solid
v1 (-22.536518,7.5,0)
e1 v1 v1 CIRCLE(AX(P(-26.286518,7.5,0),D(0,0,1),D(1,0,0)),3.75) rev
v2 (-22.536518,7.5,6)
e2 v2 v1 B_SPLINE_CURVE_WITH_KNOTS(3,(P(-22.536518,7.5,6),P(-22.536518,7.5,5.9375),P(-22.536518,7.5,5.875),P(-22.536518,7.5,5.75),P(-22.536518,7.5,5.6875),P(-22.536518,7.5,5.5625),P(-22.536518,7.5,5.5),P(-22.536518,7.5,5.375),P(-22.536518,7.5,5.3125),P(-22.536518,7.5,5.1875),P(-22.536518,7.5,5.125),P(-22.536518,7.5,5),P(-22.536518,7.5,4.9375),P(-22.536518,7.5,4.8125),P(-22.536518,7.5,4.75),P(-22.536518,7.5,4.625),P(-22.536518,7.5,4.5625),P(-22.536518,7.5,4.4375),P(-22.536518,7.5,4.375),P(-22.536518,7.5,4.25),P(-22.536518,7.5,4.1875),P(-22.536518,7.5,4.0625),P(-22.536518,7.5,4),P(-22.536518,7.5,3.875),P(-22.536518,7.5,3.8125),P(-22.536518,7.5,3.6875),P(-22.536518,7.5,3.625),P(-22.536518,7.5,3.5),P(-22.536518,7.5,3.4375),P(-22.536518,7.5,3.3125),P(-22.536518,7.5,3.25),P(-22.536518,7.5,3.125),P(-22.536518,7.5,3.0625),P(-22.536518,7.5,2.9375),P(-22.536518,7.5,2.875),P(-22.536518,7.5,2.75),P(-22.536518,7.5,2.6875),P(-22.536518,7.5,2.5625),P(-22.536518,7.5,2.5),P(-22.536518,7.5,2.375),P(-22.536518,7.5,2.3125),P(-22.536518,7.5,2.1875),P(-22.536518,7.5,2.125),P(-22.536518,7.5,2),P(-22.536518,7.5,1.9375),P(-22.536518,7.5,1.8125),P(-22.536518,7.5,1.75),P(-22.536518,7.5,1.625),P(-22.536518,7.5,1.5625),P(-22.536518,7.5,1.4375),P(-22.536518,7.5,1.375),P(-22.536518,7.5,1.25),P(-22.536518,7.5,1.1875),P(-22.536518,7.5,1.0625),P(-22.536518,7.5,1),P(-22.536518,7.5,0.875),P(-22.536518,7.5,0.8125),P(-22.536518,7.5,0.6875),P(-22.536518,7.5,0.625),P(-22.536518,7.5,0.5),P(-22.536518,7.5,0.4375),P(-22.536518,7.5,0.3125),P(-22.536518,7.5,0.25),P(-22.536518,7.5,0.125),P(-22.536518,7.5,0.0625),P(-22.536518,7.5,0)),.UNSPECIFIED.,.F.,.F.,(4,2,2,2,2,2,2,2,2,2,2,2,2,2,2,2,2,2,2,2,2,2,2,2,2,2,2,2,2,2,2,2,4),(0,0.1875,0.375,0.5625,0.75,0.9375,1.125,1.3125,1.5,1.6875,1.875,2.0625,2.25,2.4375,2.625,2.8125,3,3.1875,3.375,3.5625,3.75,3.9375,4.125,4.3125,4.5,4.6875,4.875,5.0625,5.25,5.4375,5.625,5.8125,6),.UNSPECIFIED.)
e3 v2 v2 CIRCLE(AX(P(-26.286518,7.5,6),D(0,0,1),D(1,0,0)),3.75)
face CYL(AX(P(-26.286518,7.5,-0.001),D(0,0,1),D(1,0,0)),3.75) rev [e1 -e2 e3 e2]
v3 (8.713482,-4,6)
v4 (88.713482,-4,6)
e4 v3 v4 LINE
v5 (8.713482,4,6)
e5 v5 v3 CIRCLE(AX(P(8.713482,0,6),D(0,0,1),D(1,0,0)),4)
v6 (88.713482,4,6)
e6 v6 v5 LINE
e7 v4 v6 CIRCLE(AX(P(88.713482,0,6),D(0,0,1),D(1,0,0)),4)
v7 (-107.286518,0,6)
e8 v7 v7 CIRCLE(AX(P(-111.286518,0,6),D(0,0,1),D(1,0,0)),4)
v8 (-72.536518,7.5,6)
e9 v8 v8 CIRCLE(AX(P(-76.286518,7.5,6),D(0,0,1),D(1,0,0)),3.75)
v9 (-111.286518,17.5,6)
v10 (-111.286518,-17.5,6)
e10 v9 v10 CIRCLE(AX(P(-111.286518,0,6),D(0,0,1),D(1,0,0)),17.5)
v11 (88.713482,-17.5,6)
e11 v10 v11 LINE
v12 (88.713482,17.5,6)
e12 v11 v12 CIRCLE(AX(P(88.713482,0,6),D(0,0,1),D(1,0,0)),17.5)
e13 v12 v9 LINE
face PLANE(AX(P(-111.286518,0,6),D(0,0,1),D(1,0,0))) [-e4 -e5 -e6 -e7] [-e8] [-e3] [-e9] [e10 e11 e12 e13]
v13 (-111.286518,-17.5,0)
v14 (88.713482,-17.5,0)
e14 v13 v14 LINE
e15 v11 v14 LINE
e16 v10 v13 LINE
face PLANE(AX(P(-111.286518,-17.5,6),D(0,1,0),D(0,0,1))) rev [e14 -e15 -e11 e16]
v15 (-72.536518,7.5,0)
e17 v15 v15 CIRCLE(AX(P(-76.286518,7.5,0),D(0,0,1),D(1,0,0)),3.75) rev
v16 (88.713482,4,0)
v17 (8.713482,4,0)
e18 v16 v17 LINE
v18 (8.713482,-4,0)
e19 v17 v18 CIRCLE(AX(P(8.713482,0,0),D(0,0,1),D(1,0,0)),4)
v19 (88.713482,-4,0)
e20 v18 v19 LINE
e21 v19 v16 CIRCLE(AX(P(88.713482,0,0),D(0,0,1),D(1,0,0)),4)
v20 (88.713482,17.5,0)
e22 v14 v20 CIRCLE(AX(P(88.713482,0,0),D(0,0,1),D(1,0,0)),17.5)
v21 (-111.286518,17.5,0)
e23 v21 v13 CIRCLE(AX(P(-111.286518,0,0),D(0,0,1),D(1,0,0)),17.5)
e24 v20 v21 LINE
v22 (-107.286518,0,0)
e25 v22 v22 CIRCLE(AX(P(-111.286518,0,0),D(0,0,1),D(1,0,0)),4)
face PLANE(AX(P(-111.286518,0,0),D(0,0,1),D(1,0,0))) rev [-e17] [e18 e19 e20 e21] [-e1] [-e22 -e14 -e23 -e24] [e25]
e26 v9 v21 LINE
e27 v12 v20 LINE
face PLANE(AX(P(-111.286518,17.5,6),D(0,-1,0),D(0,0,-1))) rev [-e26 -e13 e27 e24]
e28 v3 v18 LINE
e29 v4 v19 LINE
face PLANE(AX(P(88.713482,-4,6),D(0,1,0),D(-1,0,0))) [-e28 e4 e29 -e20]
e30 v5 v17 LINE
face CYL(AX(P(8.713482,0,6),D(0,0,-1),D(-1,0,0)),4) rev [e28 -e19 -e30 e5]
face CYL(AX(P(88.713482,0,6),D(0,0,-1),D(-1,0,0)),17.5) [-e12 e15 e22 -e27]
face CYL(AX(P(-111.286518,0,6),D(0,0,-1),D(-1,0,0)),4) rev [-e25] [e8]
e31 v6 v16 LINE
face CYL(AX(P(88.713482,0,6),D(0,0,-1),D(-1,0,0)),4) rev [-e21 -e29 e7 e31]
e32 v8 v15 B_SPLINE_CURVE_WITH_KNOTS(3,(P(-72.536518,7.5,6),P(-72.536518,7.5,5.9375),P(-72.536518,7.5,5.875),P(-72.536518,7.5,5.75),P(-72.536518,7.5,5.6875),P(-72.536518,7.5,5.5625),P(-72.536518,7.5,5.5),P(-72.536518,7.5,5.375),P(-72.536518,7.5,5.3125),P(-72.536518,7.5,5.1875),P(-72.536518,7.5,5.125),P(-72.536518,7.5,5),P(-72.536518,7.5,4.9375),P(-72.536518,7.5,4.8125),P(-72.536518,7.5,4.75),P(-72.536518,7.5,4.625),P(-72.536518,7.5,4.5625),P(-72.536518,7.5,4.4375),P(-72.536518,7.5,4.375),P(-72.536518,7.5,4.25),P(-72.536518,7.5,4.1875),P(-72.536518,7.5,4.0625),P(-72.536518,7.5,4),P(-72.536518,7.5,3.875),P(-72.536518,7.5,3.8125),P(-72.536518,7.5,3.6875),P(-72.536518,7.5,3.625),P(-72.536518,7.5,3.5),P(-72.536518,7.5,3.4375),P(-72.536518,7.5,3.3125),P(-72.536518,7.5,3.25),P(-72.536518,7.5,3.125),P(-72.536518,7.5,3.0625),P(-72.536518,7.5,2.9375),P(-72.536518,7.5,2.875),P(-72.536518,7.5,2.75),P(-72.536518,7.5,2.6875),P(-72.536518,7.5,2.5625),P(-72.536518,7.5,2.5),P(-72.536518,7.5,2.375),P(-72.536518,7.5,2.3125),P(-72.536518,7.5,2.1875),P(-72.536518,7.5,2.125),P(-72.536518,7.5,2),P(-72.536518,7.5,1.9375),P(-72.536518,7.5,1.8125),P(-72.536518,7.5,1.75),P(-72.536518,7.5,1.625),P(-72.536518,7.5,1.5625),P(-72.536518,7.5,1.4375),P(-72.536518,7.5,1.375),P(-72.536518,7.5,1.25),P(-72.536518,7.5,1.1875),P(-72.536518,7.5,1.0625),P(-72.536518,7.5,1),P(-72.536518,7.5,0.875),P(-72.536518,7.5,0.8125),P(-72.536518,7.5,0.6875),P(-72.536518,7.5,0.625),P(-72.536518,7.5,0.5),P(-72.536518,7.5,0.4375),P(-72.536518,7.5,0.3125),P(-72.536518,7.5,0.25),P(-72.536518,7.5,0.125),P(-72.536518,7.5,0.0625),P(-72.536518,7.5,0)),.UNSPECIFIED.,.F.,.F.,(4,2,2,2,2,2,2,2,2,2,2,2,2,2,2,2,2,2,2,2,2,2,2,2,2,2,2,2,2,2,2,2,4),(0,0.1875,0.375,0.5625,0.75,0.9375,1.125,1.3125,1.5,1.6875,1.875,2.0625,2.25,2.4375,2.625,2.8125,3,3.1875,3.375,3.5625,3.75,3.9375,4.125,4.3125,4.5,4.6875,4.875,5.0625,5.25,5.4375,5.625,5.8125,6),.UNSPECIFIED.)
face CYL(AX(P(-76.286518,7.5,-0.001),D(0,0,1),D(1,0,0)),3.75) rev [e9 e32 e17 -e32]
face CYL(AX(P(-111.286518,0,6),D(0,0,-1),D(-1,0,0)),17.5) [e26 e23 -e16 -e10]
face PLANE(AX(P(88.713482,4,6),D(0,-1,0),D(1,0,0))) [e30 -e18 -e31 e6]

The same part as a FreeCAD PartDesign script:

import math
import FreeCAD as App
import Part
import Sketcher

V = App.Vector

doc = App.newDocument("Part")
body = doc.addObject("PartDesign::Body", "Body")

# Sketch on XY plane
sketch1 = body.newObject("Sketcher::SketchObject", "Sketch")
sketch1.AttachmentSupport = (doc.getObject("XY_Plane"), [""])
sketch1.MapMode = "FlatFace"
sketch1.addGeometry([
    Part.LineSegment(V(88.713482, 17.5, 0), V(-111.286518, 17.5, 0)),  # 0
    Part.ArcOfCircle(Part.Circle(V(-111.286518, 0, 0), V(0, 0, 1), 17.5), math.radians(90), math.radians(270)),  # 1
    Part.LineSegment(V(-111.286518, -17.5, 0), V(88.713482, -17.5, 0)),  # 2
    Part.ArcOfCircle(Part.Circle(V(88.713482, 0, 0), V(0, 0, 1), 17.5), math.radians(-90), math.radians(90)),  # 3
    Part.LineSegment(V(88.713482, -4, 0), V(8.713482, -4, 0)),  # 4
    Part.ArcOfCircle(Part.Circle(V(8.713482, 0, 0), V(0, 0, 1), 4), math.radians(90), math.radians(270)),  # 5
    Part.LineSegment(V(8.713482, 4, 0), V(88.713482, 4, 0)),  # 6
    Part.ArcOfCircle(Part.Circle(V(88.713482, 0, 0), V(0, 0, 1), 4), math.radians(-90), math.radians(90)),  # 7
    Part.Circle(V(-111.286518, 0, 0), V(0, 0, 1), 4),  # 8
], False)
sketch1.addConstraint([
    Sketcher.Constraint("Tangent", 0, 2, 1, 1),
    Sketcher.Constraint("Tangent", 1, 2, 2, 1),
    Sketcher.Constraint("Tangent", 2, 2, 3, 1),
    Sketcher.Constraint("Tangent", 3, 2, 0, 1),
    Sketcher.Constraint("Tangent", 4, 2, 5, 2),
    Sketcher.Constraint("Tangent", 5, 1, 6, 1),
    Sketcher.Constraint("Tangent", 6, 2, 7, 2),
    Sketcher.Constraint("Tangent", 7, 1, 4, 1),
    Sketcher.Constraint("Horizontal", 0),
    Sketcher.Constraint("Horizontal", 2),
    Sketcher.Constraint("Horizontal", 4),
    Sketcher.Constraint("Horizontal", 6),
    Sketcher.Constraint("Coincident", 7, 3, 3, 3),
    Sketcher.Constraint("Coincident", 8, 3, 1, 3),
    Sketcher.Constraint("Equal", 7, 8),
    Sketcher.Constraint("PointOnObject", 1, 3, -1),
    Sketcher.Constraint("Diameter", 8, 8.0),
    Sketcher.Constraint("Radius", 1, 17.5),
    Sketcher.Constraint("DistanceX", 0, 2, 0, 1, 200.0),
    Sketcher.Constraint("DistanceX", 4, 2, 4, 1, 80.0),
    Sketcher.Constraint("DistanceX", 1, 3, -1, 1, 111.286518),
])
pad1 = body.newObject("PartDesign::Pad", "Pad")
pad1.Profile = sketch1
pad1.Length = 6

# Sketch on XY plane
sketch2 = body.newObject("Sketcher::SketchObject", "Sketch001")
sketch2.AttachmentSupport = (doc.getObject("XY_Plane"), [""])
sketch2.MapMode = "FlatFace"
sketch2.AttachmentOffset = App.Placement(V(0, 0, 6), App.Rotation())
sketch2.addGeometry(Part.Circle(V(-76.286518, 7.5, 0), V(0, 0, 1), 3.75), False)
sketch2.addConstraint([
    Sketcher.Constraint("Diameter", 0, 7.5),
    Sketcher.Constraint("DistanceY", -1, 1, 0, 3, 7.5),
    Sketcher.Constraint("DistanceX", 0, 3, -1, 1, 76.286518),
])
pocket1 = body.newObject("PartDesign::Pocket", "Pocket")
pocket1.Profile = sketch2
pocket1.Type = "UpToFirst"

# Sketch on XY plane
sketch3 = body.newObject("Sketcher::SketchObject", "Sketch002")
sketch3.AttachmentSupport = (doc.getObject("XY_Plane"), [""])
sketch3.MapMode = "FlatFace"
sketch3.AttachmentOffset = App.Placement(V(0, 0, 6), App.Rotation())
sketch3.addGeometry(Part.Circle(V(-26.286518, 7.5, 0), V(0, 0, 1), 3.75), False)
sketch3.addConstraint([
    Sketcher.Constraint("Diameter", 0, 7.5),
    Sketcher.Constraint("DistanceY", -1, 1, 0, 3, 7.5),
    Sketcher.Constraint("DistanceX", 0, 3, -1, 1, 26.286518),
])
pocket2 = body.newObject("PartDesign::Pocket", "Pocket001")
pocket2.Profile = sketch3
pocket2.Type = "UpToFirst"

doc.recompute()
